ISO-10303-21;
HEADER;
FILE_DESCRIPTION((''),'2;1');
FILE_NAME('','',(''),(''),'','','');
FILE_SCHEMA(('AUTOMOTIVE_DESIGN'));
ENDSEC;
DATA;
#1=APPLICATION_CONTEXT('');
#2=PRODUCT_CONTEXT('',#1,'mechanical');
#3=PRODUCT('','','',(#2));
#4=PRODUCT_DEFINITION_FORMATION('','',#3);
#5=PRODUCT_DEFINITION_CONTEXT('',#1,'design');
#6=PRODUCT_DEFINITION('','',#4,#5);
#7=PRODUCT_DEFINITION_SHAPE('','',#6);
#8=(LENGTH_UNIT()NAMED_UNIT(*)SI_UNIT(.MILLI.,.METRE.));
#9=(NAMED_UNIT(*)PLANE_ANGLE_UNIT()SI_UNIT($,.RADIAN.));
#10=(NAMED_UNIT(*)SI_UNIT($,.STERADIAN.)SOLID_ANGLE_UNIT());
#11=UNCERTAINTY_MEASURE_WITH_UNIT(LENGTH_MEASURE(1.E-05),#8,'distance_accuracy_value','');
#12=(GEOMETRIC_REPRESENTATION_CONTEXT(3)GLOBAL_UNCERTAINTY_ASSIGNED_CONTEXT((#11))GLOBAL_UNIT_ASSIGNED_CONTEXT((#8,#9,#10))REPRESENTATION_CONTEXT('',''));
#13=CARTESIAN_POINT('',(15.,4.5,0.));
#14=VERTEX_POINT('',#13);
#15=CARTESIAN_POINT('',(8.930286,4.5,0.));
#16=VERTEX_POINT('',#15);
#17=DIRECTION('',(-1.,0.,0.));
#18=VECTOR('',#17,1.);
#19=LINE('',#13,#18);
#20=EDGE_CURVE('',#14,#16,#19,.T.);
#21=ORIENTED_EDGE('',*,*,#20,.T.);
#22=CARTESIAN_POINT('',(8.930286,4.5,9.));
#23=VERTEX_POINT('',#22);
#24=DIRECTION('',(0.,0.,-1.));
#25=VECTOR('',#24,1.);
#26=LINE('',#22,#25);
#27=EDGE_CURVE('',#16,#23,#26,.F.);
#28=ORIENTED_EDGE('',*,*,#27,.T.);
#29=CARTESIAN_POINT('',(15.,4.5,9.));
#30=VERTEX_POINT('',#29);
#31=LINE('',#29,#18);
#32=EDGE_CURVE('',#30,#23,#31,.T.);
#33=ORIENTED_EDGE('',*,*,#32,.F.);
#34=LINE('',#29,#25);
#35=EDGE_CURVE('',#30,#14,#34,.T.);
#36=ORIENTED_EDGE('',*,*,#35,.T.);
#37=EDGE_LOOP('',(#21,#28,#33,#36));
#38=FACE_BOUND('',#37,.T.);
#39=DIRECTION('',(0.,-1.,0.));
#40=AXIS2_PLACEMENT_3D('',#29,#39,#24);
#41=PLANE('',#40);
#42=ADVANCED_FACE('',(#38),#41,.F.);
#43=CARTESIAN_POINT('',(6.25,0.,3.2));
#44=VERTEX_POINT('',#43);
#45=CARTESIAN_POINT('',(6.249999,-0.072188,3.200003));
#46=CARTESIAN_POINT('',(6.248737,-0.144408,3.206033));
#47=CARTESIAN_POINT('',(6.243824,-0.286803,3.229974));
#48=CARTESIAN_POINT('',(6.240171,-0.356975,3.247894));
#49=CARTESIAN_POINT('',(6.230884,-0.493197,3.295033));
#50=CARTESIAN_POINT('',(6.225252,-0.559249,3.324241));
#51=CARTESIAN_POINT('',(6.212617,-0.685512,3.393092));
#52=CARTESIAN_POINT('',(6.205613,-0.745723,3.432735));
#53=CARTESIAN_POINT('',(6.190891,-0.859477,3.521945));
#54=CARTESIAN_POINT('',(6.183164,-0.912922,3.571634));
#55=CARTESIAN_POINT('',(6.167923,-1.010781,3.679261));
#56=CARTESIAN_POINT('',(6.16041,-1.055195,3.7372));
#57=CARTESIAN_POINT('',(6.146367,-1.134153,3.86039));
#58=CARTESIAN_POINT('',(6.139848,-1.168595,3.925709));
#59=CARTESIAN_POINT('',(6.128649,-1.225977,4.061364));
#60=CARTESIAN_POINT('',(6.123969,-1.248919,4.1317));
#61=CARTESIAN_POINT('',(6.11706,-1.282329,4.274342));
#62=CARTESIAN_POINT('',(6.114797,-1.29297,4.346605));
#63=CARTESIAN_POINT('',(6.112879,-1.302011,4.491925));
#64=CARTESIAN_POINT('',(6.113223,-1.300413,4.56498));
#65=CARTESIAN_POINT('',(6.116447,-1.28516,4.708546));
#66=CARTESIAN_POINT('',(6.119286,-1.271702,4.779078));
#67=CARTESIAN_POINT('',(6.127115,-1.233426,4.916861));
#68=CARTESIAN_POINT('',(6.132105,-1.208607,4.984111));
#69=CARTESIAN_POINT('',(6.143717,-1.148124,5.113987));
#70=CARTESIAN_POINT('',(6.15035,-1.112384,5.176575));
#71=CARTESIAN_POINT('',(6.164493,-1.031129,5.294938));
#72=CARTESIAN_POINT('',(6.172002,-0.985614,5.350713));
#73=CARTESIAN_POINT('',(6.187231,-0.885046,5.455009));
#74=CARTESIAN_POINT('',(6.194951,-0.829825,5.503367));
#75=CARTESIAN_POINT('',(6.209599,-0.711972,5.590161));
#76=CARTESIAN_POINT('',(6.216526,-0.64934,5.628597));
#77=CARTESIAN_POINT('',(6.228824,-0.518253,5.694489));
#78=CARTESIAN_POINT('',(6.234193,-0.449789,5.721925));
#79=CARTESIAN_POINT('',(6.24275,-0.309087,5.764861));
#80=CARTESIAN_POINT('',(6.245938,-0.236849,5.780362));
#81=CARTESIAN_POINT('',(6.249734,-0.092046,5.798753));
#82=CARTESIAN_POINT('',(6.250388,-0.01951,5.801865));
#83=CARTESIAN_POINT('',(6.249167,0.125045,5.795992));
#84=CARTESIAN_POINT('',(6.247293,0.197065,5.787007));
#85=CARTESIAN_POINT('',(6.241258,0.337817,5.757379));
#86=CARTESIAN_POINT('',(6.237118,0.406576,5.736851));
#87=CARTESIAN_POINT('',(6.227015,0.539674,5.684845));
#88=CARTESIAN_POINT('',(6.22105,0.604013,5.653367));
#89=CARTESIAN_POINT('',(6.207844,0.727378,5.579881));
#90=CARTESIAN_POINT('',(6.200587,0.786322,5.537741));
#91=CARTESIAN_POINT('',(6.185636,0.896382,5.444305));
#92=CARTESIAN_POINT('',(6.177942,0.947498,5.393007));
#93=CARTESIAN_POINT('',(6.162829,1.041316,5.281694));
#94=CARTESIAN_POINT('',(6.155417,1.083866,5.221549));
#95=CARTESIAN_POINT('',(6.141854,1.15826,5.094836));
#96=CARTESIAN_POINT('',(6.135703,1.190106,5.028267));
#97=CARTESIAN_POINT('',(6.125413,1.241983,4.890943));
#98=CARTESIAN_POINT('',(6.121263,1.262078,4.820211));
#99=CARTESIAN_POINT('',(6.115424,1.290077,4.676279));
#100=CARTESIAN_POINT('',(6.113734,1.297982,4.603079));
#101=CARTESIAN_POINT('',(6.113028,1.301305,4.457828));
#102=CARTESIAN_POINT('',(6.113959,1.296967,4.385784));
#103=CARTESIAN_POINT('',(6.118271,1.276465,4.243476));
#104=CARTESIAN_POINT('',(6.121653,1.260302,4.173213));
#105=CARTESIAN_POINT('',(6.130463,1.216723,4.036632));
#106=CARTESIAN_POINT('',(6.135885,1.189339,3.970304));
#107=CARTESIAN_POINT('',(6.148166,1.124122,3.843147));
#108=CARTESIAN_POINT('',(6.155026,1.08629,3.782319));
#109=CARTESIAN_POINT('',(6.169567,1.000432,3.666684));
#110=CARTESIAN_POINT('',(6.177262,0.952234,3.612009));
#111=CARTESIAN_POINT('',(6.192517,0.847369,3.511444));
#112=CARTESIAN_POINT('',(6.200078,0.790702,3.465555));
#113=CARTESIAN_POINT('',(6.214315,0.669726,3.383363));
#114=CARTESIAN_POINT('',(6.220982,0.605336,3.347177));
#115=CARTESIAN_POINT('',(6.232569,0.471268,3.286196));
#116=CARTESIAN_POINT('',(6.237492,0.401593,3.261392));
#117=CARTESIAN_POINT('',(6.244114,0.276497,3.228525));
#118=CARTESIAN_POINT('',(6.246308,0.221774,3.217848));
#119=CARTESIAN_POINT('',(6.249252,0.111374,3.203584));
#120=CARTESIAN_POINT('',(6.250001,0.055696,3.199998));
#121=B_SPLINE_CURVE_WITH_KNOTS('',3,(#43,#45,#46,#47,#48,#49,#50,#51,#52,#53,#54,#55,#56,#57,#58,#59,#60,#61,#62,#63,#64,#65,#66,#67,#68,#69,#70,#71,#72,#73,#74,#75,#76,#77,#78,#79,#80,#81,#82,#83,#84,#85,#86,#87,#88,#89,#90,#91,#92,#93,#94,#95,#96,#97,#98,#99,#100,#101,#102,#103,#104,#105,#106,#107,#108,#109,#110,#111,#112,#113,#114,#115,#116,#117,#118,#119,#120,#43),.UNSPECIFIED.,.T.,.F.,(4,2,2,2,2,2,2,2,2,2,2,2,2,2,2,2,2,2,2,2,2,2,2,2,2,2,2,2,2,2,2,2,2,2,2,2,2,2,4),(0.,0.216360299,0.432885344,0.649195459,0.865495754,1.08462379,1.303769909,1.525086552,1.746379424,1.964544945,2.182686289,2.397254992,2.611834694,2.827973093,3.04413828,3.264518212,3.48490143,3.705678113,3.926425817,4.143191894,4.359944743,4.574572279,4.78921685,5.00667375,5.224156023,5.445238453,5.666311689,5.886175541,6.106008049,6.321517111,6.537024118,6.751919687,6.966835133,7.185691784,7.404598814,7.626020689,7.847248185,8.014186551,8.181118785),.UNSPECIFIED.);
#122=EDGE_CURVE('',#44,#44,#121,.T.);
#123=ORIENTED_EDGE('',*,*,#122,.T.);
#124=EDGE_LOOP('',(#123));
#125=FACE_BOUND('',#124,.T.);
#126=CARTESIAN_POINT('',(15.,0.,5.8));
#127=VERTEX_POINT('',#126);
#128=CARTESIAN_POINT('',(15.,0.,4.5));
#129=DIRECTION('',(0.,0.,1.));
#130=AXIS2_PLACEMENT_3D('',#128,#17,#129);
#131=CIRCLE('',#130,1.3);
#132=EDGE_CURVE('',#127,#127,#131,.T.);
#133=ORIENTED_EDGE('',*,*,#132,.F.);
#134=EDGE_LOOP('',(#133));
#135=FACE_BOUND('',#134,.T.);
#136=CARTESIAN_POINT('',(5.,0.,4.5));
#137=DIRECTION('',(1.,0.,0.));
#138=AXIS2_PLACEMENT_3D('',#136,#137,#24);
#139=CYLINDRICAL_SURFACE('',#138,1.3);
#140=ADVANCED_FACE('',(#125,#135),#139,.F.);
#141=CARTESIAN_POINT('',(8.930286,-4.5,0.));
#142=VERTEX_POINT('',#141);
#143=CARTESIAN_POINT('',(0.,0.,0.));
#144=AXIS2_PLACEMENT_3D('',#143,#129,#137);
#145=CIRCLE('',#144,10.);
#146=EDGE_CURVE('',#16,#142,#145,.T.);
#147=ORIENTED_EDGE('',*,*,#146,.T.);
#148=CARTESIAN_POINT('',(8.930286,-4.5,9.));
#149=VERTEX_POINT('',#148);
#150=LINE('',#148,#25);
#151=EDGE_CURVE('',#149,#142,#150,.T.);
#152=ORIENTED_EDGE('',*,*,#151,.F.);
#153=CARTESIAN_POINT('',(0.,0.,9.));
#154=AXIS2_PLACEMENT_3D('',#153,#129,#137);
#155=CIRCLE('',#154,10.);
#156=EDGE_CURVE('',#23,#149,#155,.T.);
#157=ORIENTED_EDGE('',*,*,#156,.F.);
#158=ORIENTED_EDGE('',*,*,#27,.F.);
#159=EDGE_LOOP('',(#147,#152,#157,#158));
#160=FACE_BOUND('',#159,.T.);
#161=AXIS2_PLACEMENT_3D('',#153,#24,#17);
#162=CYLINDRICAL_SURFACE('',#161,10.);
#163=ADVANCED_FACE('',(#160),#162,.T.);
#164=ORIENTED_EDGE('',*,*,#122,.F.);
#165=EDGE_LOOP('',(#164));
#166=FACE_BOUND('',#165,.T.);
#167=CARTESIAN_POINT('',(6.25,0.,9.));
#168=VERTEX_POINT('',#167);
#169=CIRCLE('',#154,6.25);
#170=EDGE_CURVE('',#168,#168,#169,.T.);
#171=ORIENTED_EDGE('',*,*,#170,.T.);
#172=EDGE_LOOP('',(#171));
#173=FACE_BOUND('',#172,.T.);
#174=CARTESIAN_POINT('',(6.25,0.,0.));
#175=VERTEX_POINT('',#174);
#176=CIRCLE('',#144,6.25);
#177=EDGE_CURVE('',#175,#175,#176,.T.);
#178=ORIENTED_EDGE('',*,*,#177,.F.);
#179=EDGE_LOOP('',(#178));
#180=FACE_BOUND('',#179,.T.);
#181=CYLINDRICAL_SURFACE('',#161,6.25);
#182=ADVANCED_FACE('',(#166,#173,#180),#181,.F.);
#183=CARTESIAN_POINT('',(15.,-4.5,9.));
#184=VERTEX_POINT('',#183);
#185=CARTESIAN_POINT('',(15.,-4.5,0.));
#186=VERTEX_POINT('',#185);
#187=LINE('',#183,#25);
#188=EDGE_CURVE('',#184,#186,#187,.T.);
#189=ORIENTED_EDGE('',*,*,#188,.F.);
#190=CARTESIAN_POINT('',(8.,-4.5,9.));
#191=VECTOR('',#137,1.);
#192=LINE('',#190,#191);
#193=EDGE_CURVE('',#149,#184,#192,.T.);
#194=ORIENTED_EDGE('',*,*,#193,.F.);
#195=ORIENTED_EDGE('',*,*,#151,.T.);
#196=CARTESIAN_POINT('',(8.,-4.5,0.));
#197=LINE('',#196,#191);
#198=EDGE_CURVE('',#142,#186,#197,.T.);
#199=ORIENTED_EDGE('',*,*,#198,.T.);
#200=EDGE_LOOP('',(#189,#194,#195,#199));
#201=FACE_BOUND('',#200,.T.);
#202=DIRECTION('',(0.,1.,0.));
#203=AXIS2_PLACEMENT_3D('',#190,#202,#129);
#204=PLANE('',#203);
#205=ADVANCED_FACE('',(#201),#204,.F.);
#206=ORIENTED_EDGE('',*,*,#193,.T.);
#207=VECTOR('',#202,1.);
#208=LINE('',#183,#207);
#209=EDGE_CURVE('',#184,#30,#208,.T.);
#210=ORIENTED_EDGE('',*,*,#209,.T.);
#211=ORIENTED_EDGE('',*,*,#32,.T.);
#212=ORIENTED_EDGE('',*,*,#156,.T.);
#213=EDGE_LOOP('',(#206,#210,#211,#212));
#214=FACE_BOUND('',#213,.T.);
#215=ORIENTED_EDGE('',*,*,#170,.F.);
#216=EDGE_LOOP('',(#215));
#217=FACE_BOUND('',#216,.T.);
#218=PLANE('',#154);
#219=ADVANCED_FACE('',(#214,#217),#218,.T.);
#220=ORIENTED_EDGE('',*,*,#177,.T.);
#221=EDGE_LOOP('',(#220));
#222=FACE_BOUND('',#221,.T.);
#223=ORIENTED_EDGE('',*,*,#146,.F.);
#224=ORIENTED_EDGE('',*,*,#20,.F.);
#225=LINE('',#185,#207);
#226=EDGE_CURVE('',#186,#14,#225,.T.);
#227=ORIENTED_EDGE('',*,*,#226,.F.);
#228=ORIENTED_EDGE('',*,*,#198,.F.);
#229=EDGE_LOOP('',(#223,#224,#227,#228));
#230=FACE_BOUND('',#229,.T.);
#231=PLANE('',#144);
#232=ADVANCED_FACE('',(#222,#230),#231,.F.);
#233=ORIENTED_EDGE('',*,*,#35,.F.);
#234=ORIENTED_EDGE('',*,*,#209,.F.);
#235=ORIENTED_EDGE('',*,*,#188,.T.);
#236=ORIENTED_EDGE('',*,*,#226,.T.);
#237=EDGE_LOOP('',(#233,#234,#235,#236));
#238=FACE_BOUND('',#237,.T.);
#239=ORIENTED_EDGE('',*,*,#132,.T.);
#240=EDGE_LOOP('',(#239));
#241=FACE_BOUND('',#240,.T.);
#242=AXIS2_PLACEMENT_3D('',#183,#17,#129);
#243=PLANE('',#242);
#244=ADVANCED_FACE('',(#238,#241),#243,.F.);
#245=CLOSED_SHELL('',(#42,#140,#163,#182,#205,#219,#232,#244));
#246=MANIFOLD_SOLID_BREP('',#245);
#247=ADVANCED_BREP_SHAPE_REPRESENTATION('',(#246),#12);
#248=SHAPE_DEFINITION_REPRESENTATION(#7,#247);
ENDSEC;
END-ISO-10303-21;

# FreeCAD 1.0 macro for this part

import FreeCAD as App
import Part
import Sketcher

V = App.Vector

doc = App.newDocument("Part")
params = doc.addObject("Spreadsheet::Sheet", "Params")
for row, (alias, value) in enumerate([
    ("sketch1_diameter", "20 mm"),
    ("sketch1_diameter2", "12.5 mm"),
    ("pad1_length", "9 mm"),
    ("sketch2_width", "7 mm"),
    ("sketch2_height", "9 mm"),
    ("pad2_length", "9 mm"),
    ("sketch3_diameter", "2.6 mm"),
    ("pocket1_length", "11 mm"),
], start=1):
    params.set(f"A{row}", alias)
    params.set(f"B{row}", "=" + value)
    params.setAlias(f"B{row}", alias)

body = doc.addObject("PartDesign::Body", "Body")

sketch1 = body.newObject("Sketcher::SketchObject", "Sketch")
sketch1.AttachmentSupport = (doc.getObject("XY_Plane"), [""])
sketch1.MapMode = "FlatFace"
sketch1.addGeometry([
    Part.Circle(V(0, 0, 0), V(0, 0, 1), 10),
    Part.Circle(V(0, 0, 0), V(0, 0, 1), 6.25),
], False)
sketch1.addConstraint([
    Sketcher.Constraint("Coincident", 0, 3, -1, 1),
    Sketcher.Constraint("Coincident", 1, 3, -1, 1),
    Sketcher.Constraint("Diameter", 0, 20.0),
    Sketcher.Constraint("Diameter", 1, 12.5),
])
sketch1.setExpression("Constraints[2]", "Params.sketch1_diameter")
sketch1.setExpression("Constraints[3]", "Params.sketch1_diameter2")
pad1 = body.newObject("PartDesign::Pad", "Pad")
pad1.Profile = sketch1
pad1.setExpression("Length", "Params.pad1_length")

sketch2 = body.newObject("Sketcher::SketchObject", "Sketch001")
sketch2.AttachmentSupport = (doc.getObject("XY_Plane"), [""])
sketch2.MapMode = "FlatFace"
sketch2.addGeometry([
    Part.LineSegment(V(8, 4.5, 0), V(8, -4.5, 0)),
    Part.LineSegment(V(8, -4.5, 0), V(15, -4.5, 0)),
    Part.LineSegment(V(15, -4.5, 0), V(15, 4.5, 0)),
    Part.LineSegment(V(15, 4.5, 0), V(8, 4.5, 0)),
], False)
sketch2.addConstraint([
    Sketcher.Constraint("Coincident", 0, 2, 1, 1),
    Sketcher.Constraint("Coincident", 1, 2, 2, 1),
    Sketcher.Constraint("Coincident", 2, 2, 3, 1),
    Sketcher.Constraint("Coincident", 3, 2, 0, 1),
    Sketcher.Constraint("Vertical", 0),
    Sketcher.Constraint("Horizontal", 1),
    Sketcher.Constraint("Vertical", 2),
    Sketcher.Constraint("Horizontal", 3),
    Sketcher.Constraint("DistanceX", 1, 1, 1, 2, 7.0),
    Sketcher.Constraint("DistanceY", 0, 2, 0, 1, 9.0),
    Sketcher.Constraint("DistanceX", -1, 1, 0, 2, 8.0),
    Sketcher.Constraint("DistanceY", 0, 2, -1, 1, 4.5),
])
sketch2.setExpression("Constraints[8]", "Params.sketch2_width")
sketch2.setExpression("Constraints[9]", "Params.sketch2_height")
pad2 = body.newObject("PartDesign::Pad", "Pad001")
pad2.Profile = sketch2
pad2.setExpression("Length", "Params.pad2_length")

sketch3 = body.newObject("Sketcher::SketchObject", "Sketch002")
sketch3.AttachmentSupport = (doc.getObject("YZ_Plane"), [""])
sketch3.MapMode = "FlatFace"
sketch3.AttachmentOffset = App.Placement(V(0, 0, 10.5), App.Rotation())
sketch3.addGeometry(Part.Circle(V(0, 4.5, 0), V(0, 0, 1), 1.3), False)
sketch3.addConstraint([
    Sketcher.Constraint("PointOnObject", 0, 3, -2),
    Sketcher.Constraint("Diameter", 0, 2.6),
    Sketcher.Constraint("DistanceY", -1, 1, 0, 3, 4.5),
])
sketch3.setExpression("Constraints[1]", "Params.sketch3_diameter")
pocket1 = body.newObject("PartDesign::Pocket", "Pocket")
pocket1.Profile = sketch3
pocket1.setExpression("Length", "Params.pocket1_length")
pocket1.Midplane = True

doc.recompute()
